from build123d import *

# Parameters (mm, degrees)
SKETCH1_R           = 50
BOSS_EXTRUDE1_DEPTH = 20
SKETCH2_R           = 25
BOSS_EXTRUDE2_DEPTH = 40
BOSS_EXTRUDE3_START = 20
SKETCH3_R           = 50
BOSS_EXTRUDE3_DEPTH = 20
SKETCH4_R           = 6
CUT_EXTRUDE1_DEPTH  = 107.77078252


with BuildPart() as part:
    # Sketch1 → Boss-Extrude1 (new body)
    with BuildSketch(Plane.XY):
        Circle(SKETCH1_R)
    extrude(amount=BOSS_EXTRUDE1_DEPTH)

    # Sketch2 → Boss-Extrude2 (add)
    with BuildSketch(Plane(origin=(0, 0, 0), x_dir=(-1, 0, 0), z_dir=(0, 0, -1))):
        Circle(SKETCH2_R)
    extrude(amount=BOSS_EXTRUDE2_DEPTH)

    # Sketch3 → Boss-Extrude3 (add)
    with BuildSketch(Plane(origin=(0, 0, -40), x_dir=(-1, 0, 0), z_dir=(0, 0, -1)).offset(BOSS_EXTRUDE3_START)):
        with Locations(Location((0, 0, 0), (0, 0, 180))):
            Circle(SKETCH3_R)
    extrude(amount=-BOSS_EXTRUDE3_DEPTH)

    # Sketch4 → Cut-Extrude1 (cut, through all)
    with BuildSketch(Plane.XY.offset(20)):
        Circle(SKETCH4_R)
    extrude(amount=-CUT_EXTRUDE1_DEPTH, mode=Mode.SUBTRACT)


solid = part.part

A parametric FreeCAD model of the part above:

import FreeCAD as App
import Part
import Sketcher

V = App.Vector

doc = App.newDocument("Part")
body = doc.addObject("PartDesign::Body", "Body")

# Sketch on XY plane
sketch1 = body.newObject("Sketcher::SketchObject", "Sketch")
sketch1.AttachmentSupport = (doc.getObject("XY_Plane"), [""])
sketch1.MapMode = "FlatFace"
sketch1.addGeometry(Part.Circle(V(0, 0, 0), V(0, 0, 1), 50), False)
sketch1.addConstraint(Sketcher.Constraint("Coincident", 0, 3, -1, 1))
sketch1.addConstraint(Sketcher.Constraint("Diameter", 0, 100.0))
pad1 = body.newObject("PartDesign::Pad", "Pad")
pad1.Profile = sketch1
pad1.Length = 20

# Sketch on XY plane
sketch2 = body.newObject("Sketcher::SketchObject", "Sketch001")
sketch2.AttachmentSupport = (doc.getObject("XY_Plane"), [""])
sketch2.MapMode = "FlatFace"
sketch2.addGeometry(Part.Circle(V(0, 0, 0), V(0, 0, 1), 25), False)
sketch2.addConstraint(Sketcher.Constraint("Coincident", 0, 3, -1, 1))
sketch2.addConstraint(Sketcher.Constraint("Diameter", 0, 50.0))
pad2 = body.newObject("PartDesign::Pad", "Pad001")
pad2.Profile = sketch2
pad2.Length = 40
pad2.Reversed = True

# Sketch on XY plane
sketch3 = body.newObject("Sketcher::SketchObject", "Sketch002")
sketch3.AttachmentSupport = (doc.getObject("XY_Plane"), [""])
sketch3.MapMode = "FlatFace"
sketch3.AttachmentOffset = App.Placement(V(0, 0, -60), App.Rotation())
sketch3.addGeometry(Part.Circle(V(0, 0, 0), V(0, 0, 1), 50), False)
sketch3.addConstraint(Sketcher.Constraint("Coincident", 0, 3, -1, 1))
sketch3.addConstraint(Sketcher.Constraint("Diameter", 0, 100.0))
pad3 = body.newObject("PartDesign::Pad", "Pad002")
pad3.Profile = sketch3
pad3.Length = 20

# Sketch on XY plane
sketch4 = body.newObject("Sketcher::SketchObject", "Sketch003")
sketch4.AttachmentSupport = (doc.getObject("XY_Plane"), [""])
sketch4.MapMode = "FlatFace"
sketch4.AttachmentOffset = App.Placement(V(0, 0, 20), App.Rotation())
sketch4.addGeometry(Part.Circle(V(0, 0, 0), V(0, 0, 1), 6), False)
sketch4.addConstraint(Sketcher.Constraint("Coincident", 0, 3, -1, 1))
sketch4.addConstraint(Sketcher.Constraint("Diameter", 0, 12.0))
pocket1 = body.newObject("PartDesign::Pocket", "Pocket")
pocket1.Profile = sketch4
pocket1.Type = "ThroughAll"

doc.recompute()
